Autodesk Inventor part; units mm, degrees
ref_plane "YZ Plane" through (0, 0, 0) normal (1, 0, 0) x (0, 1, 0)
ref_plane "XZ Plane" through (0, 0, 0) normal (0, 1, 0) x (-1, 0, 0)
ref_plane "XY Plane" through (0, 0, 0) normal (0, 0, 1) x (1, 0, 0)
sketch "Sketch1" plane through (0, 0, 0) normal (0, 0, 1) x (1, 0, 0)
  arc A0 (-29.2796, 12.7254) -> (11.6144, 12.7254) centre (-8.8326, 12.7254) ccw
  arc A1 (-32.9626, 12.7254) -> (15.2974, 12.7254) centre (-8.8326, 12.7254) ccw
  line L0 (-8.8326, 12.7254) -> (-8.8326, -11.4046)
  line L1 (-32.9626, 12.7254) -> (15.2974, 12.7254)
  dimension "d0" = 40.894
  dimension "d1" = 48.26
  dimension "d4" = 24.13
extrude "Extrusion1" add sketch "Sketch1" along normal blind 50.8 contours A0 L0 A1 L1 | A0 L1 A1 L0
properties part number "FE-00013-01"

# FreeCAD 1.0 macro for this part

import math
import FreeCAD as App
import Part
import Sketcher

V = App.Vector
Q = App.Units.Quantity

doc = App.newDocument("Part")
body = doc.addObject("PartDesign::Body", "Body")

# Sketch on XY plane
sketch1 = body.newObject("Sketcher::SketchObject", "Sketch")
sketch1.AttachmentSupport = (doc.getObject("XY_Plane"), [""])
sketch1.MapMode = "FlatFace"
sketch1.addGeometry([
    Part.LineSegment(V(-29.2796, 12.7254, 0), V(-32.9626, 12.7254, 0)),
    Part.ArcOfCircle(Part.Circle(V(-8.8326, 12.7254, 0), V(0, 0, 1), 24.13), math.radians(180), math.radians(360)),
    Part.LineSegment(V(15.2974, 12.7254, 0), V(11.6144, 12.7254, 0)),
    Part.ArcOfCircle(Part.Circle(V(-8.8326, 12.7254, 0), V(0, 0, 1), 20.447), math.radians(180), math.radians(360)),
], False)
sketch1.addConstraint([
    Sketcher.Constraint("Coincident", 0, 2, 1, 1),
    Sketcher.Constraint("Coincident", 1, 2, 2, 1),
    Sketcher.Constraint("Coincident", 2, 2, 3, 2),
    Sketcher.Constraint("Coincident", 3, 1, 0, 1),
    Sketcher.Constraint("Horizontal", 0),
    Sketcher.Constraint("Horizontal", 2),
    Sketcher.Constraint("Coincident", 3, 3, 1, 3),
    Sketcher.Constraint("Horizontal", 3, 3, 0, 2),
    Sketcher.Constraint("Horizontal", 0, 2, 1, 2),
    Sketcher.Constraint("Radius", 1, Q("0.95 in")),
    Sketcher.Constraint("Radius", 3, Q("0.805 in")),
    Sketcher.Constraint("DistanceY", -1, 1, 1, 3, Q("0.501 in")),
    Sketcher.Constraint("DistanceX", 1, 3, -1, 1, 8.8326),
])
pad1 = body.newObject("PartDesign::Pad", "Pad")
pad1.Profile = sketch1
pad1.Length = Q("2 in")

doc.recompute()
